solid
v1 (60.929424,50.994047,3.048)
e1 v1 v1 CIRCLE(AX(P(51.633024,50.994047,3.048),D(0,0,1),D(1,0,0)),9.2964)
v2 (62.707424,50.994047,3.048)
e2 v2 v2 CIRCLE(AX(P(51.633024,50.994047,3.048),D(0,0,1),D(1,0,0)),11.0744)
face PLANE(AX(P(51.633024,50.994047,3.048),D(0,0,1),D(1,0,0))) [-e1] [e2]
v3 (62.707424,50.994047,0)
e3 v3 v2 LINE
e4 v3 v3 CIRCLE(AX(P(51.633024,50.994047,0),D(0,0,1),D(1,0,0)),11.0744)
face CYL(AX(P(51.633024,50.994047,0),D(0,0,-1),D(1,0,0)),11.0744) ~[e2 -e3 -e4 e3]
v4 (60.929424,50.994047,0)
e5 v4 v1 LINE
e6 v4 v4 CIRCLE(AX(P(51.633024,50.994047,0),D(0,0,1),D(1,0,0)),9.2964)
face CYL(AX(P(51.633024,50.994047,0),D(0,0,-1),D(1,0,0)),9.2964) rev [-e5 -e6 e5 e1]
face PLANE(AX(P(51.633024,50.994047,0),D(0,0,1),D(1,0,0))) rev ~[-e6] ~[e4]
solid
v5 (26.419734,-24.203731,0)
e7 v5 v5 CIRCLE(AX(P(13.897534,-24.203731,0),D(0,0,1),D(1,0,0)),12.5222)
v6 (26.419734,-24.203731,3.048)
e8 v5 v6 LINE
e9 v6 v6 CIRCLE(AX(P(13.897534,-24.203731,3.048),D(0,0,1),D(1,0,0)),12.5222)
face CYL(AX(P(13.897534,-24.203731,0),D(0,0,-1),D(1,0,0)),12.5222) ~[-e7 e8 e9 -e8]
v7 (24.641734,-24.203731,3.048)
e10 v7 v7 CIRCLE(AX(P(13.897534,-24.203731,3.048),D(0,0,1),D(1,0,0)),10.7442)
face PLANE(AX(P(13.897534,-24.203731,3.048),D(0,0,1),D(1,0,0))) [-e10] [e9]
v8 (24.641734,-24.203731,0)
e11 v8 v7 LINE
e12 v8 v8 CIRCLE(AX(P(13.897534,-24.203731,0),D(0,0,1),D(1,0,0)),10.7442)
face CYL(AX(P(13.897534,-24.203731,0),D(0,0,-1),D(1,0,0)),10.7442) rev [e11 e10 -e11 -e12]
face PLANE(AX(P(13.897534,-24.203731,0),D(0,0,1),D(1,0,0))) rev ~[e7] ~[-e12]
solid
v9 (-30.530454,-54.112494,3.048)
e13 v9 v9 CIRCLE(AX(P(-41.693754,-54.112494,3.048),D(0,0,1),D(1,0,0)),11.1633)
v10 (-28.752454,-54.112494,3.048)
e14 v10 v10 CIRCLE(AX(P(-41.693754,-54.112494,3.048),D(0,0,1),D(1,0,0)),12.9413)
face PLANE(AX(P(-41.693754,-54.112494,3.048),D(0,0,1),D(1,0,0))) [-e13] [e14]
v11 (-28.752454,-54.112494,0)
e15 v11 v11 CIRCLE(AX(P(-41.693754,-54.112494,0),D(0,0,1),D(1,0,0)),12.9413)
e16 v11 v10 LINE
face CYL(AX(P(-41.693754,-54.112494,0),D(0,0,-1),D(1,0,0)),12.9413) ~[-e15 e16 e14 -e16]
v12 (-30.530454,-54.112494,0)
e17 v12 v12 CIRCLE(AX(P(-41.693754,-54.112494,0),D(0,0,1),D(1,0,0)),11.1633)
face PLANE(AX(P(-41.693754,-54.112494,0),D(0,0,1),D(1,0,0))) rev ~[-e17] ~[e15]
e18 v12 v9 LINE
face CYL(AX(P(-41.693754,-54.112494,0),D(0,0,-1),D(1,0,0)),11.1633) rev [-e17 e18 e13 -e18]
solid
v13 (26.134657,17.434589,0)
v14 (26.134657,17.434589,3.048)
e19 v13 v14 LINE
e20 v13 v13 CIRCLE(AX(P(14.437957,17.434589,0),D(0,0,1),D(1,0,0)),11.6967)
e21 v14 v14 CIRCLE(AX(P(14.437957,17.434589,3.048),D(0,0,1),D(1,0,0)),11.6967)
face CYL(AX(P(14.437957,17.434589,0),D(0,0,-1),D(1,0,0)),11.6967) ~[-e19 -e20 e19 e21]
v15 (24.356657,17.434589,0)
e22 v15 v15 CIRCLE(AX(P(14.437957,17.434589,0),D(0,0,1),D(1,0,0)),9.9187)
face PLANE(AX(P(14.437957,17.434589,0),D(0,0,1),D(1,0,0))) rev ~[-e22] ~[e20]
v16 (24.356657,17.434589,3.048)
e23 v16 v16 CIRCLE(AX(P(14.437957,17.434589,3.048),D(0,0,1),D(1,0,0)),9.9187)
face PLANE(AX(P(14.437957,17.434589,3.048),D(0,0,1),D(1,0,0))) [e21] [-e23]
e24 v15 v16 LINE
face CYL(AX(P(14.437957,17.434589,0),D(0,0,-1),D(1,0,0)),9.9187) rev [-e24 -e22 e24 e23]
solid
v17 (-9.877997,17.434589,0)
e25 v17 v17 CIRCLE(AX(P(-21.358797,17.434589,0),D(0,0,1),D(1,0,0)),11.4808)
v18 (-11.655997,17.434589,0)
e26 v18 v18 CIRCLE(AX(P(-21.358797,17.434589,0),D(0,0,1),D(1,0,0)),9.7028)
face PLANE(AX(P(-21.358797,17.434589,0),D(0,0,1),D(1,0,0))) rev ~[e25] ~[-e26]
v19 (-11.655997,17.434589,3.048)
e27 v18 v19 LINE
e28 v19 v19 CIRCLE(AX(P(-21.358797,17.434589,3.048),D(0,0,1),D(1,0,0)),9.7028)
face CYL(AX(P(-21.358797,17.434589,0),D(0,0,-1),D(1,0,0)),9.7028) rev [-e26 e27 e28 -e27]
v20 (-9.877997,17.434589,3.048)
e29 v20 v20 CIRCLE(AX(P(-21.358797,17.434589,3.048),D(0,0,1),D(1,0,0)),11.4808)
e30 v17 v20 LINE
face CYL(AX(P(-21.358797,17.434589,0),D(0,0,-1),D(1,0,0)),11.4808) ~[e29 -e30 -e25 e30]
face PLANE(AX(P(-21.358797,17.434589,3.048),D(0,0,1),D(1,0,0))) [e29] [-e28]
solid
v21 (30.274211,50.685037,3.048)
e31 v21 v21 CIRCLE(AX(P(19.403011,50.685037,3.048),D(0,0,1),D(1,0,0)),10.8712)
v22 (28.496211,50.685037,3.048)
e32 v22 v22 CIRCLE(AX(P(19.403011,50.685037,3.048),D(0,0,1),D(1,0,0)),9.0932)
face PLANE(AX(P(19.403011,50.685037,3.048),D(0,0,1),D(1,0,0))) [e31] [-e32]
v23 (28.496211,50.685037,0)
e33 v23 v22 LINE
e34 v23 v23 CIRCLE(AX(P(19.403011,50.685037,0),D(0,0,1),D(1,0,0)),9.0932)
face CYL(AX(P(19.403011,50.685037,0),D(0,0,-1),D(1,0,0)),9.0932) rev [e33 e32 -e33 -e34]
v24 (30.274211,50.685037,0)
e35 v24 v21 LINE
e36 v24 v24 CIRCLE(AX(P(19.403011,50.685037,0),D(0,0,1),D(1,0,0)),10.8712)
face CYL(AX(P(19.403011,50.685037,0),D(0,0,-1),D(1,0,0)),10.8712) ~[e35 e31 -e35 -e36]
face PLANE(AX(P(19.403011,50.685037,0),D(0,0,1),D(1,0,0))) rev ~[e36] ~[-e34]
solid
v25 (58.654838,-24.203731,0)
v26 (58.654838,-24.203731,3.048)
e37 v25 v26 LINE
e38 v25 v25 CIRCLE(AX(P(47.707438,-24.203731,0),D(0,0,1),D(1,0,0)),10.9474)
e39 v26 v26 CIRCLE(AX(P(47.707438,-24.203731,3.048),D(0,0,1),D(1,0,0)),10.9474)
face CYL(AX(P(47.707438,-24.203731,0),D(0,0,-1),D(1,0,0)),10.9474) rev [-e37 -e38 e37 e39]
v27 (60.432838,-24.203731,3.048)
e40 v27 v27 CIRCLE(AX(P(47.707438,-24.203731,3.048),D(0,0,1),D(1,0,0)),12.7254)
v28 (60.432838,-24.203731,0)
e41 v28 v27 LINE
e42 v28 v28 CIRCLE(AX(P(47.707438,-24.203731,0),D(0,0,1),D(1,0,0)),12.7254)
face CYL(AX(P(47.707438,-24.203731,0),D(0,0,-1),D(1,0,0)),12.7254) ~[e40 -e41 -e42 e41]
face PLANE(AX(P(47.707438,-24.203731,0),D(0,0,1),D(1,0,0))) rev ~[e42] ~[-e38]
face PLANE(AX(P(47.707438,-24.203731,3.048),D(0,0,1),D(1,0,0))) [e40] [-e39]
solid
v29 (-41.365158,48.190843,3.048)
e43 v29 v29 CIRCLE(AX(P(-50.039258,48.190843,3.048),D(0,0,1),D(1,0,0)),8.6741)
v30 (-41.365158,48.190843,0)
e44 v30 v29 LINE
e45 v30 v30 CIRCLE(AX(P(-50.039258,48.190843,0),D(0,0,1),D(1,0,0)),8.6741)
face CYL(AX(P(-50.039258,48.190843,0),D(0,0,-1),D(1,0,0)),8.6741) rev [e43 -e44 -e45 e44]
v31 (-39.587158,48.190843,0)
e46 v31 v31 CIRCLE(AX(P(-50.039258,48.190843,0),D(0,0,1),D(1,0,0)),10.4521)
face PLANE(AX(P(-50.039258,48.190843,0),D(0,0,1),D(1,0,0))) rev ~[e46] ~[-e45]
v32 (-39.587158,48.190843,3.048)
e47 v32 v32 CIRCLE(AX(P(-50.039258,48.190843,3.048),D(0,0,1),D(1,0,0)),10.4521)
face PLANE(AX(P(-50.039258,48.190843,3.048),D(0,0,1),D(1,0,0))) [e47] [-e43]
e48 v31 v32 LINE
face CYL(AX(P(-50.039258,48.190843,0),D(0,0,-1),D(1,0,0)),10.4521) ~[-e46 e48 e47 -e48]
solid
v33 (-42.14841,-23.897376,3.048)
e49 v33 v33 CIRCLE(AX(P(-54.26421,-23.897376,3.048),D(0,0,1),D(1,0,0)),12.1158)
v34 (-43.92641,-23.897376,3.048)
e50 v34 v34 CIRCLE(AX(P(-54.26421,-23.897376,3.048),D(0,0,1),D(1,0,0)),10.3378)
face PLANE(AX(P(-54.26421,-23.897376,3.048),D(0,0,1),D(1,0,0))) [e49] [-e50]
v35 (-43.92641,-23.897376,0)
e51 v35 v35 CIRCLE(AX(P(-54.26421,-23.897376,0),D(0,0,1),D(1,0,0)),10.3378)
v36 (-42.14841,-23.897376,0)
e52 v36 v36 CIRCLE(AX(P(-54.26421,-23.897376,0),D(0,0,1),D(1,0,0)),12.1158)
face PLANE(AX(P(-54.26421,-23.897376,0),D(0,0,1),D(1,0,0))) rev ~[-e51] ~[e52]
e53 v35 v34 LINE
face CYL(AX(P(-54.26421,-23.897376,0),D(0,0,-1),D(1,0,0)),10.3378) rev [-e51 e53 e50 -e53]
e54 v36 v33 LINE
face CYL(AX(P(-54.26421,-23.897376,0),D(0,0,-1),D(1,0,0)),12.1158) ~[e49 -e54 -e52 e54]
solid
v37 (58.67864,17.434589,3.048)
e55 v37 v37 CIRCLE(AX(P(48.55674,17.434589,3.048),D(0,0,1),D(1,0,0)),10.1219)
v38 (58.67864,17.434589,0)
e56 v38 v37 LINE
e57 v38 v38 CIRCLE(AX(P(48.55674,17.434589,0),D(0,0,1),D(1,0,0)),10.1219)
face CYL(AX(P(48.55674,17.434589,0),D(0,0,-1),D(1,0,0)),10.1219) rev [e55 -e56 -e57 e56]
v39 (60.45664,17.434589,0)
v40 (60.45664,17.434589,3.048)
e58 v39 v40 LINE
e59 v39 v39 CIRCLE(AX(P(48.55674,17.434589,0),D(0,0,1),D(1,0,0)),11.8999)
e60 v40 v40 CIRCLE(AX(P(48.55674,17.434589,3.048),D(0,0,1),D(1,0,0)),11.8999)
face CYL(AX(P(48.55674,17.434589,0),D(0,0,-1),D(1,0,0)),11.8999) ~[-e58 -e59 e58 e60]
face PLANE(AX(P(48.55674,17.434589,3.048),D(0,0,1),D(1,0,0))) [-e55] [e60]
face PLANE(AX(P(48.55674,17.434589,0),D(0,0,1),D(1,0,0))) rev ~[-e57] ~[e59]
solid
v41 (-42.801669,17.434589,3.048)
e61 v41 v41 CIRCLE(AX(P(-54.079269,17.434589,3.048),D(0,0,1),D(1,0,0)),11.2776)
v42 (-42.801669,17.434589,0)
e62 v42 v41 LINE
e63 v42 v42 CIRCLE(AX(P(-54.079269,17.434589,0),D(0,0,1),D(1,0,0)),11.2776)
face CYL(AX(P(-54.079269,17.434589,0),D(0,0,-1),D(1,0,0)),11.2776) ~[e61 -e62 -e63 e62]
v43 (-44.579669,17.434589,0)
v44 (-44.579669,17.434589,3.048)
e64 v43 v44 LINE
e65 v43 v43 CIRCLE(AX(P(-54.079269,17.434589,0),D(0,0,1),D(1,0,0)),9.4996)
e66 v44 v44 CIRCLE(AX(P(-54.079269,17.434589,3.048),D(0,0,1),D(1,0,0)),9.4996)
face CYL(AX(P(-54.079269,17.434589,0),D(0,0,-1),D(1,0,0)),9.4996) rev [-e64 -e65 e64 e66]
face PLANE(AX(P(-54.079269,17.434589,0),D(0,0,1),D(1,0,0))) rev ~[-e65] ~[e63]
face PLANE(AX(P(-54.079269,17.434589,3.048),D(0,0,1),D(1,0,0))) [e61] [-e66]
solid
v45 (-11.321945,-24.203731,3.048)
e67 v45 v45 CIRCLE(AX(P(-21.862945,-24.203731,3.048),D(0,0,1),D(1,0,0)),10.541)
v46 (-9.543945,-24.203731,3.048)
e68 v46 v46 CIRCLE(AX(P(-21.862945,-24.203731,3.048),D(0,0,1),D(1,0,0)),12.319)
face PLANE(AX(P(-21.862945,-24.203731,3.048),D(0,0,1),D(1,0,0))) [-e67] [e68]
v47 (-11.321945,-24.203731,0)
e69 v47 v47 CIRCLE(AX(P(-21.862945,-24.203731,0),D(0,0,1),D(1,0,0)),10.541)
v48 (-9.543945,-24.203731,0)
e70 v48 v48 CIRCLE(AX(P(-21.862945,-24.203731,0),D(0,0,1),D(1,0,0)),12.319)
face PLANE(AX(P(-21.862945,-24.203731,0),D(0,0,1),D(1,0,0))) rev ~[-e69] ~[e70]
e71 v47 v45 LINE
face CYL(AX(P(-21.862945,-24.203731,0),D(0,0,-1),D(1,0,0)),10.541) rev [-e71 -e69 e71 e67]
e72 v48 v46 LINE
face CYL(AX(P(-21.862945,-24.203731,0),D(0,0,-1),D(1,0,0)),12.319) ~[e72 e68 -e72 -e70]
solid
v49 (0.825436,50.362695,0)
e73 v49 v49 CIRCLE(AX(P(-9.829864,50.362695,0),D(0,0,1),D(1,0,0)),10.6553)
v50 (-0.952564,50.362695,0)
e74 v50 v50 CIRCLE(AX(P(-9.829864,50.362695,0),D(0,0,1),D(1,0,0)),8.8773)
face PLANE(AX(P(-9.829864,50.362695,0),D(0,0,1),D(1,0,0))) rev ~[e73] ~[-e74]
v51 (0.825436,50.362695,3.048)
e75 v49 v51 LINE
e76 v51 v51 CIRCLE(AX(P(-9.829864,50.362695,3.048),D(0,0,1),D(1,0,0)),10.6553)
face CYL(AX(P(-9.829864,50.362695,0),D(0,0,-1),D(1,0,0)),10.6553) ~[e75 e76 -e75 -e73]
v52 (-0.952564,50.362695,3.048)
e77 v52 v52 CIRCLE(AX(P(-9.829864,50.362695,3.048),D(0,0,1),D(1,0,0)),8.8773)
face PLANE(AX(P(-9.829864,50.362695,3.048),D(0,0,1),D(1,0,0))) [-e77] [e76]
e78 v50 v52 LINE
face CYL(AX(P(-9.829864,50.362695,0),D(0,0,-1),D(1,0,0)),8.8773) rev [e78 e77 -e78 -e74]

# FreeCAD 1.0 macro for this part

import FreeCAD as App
import Part
import Sketcher
from FreeCAD import Vector
Q = App.Units.Quantity

doc = App.newDocument("Part")
body = doc.addObject("PartDesign::Body", "Body")

# Sketch on XY plane
sketch1 = doc.addObject("Sketcher::SketchObject", "Sketch")
body.addObject(sketch1)
sketch1.AttachmentSupport = (doc.XY_Plane, [""])
sketch1.MapMode = "FlatFace"
sketch1.addGeometry([
    Part.Circle(Vector(-50.039258, 48.190843, 0), Vector(0, 0, 1), 10.4521),
    Part.Circle(Vector(-50.039258, 48.190843, 0), Vector(0, 0, 1), 8.6741),
], False)
sketch1.addConstraint([
    Sketcher.Constraint("Coincident", 1, 3, 0, 3),
    Sketcher.Constraint("Diameter", 0, Q("0.823 in")),
    Sketcher.Constraint("Diameter", 1, Q("0.683 in")),
    Sketcher.Constraint("DistanceX", 0, 3, -1, 1, 50.039258),
    Sketcher.Constraint("DistanceY", -1, 1, 0, 3, 48.190843),
])
pad1 = doc.addObject("PartDesign::Pad", "Pad")
body.addObject(pad1)
pad1.Profile = sketch1
pad1.Length = Q("0.12 in")
body2 = doc.addObject("PartDesign::Body", "Body001")

# Sketch on XY plane
sketch2 = doc.addObject("Sketcher::SketchObject", "Sketch001")
body2.addObject(sketch2)
sketch2.AttachmentSupport = (doc.getObject("XY_Plane001"), [""])
sketch2.MapMode = "FlatFace"
sketch2.addGeometry([
    Part.Circle(Vector(-9.829864, 50.362695, 0), Vector(0, 0, 1), 10.6553),
    Part.Circle(Vector(-9.829864, 50.362695, 0), Vector(0, 0, 1), 8.8773),
], False)
sketch2.addConstraint([
    Sketcher.Constraint("Coincident", 1, 3, 0, 3),
    Sketcher.Constraint("Diameter", 0, Q("0.839 in")),
    Sketcher.Constraint("Diameter", 1, Q("0.699 in")),
    Sketcher.Constraint("DistanceX", 0, 3, -1, 1, 9.829864),
    Sketcher.Constraint("DistanceY", -1, 1, 0, 3, 50.362695),
])
pad2 = doc.addObject("PartDesign::Pad", "Pad001")
body2.addObject(pad2)
pad2.Profile = sketch2
pad2.Length = Q("0.12 in")
body3 = doc.addObject("PartDesign::Body", "Body002")

# Sketch on XY plane
sketch3 = doc.addObject("Sketcher::SketchObject", "Sketch002")
body3.addObject(sketch3)
sketch3.AttachmentSupport = (doc.getObject("XY_Plane002"), [""])
sketch3.MapMode = "FlatFace"
sketch3.addGeometry([
    Part.Circle(Vector(19.403011, 50.685037, 0), Vector(0, 0, 1), 10.8712),
    Part.Circle(Vector(19.403011, 50.685037, 0), Vector(0, 0, 1), 9.0932),
], False)
sketch3.addConstraint([
    Sketcher.Constraint("Coincident", 1, 3, 0, 3),
    Sketcher.Constraint("Diameter", 0, Q("0.856 in")),
    Sketcher.Constraint("Diameter", 1, Q("0.716 in")),
    Sketcher.Constraint("DistanceX", -1, 1, 0, 3, 19.403011),
    Sketcher.Constraint("DistanceY", -1, 1, 0, 3, 50.685037),
])
pad3 = doc.addObject("PartDesign::Pad", "Pad002")
body3.addObject(pad3)
pad3.Profile = sketch3
pad3.Length = Q("0.12 in")
body4 = doc.addObject("PartDesign::Body", "Body003")

# Sketch on XY plane
sketch4 = doc.addObject("Sketcher::SketchObject", "Sketch003")
body4.addObject(sketch4)
sketch4.AttachmentSupport = (doc.getObject("XY_Plane003"), [""])
sketch4.MapMode = "FlatFace"
sketch4.addGeometry([
    Part.Circle(Vector(51.633024, 50.994047, 0), Vector(0, 0, 1), 11.0744),
    Part.Circle(Vector(51.633024, 50.994047, 0), Vector(0, 0, 1), 9.2964),
], False)
sketch4.addConstraint([
    Sketcher.Constraint("Coincident", 1, 3, 0, 3),
    Sketcher.Constraint("Diameter", 0, Q("0.872 in")),
    Sketcher.Constraint("Diameter", 1, Q("0.732 in")),
    Sketcher.Constraint("DistanceX", -1, 1, 0, 3, 51.633024),
    Sketcher.Constraint("DistanceY", -1, 1, 0, 3, 50.994047),
])
pad4 = doc.addObject("PartDesign::Pad", "Pad003")
body4.addObject(pad4)
pad4.Profile = sketch4
pad4.Length = Q("0.12 in")
body5 = doc.addObject("PartDesign::Body", "Body004")

# Sketch on XY plane
sketch5 = doc.addObject("Sketcher::SketchObject", "Sketch004")
body5.addObject(sketch5)
sketch5.AttachmentSupport = (doc.getObject("XY_Plane004"), [""])
sketch5.MapMode = "FlatFace"
sketch5.addGeometry([
    Part.Circle(Vector(-54.079269, 17.434589, 0), Vector(0, 0, 1), 11.2776),
    Part.Circle(Vector(-54.079269, 17.434589, 0), Vector(0, 0, 1), 9.4996),
], False)
sketch5.addConstraint([
    Sketcher.Constraint("Coincident", 1, 3, 0, 3),
    Sketcher.Constraint("Diameter", 0, Q("0.888 in")),
    Sketcher.Constraint("Diameter", 1, Q("0.748 in")),
    Sketcher.Constraint("DistanceX", 0, 3, -1, 1, 54.079269),
    Sketcher.Constraint("DistanceY", -1, 1, 0, 3, 17.434589),
])
pad5 = doc.addObject("PartDesign::Pad", "Pad004")
body5.addObject(pad5)
pad5.Profile = sketch5
pad5.Length = Q("0.12 in")
body6 = doc.addObject("PartDesign::Body", "Body005")

# Sketch on XY plane
sketch6 = doc.addObject("Sketcher::SketchObject", "Sketch005")
body6.addObject(sketch6)
sketch6.AttachmentSupport = (doc.getObject("XY_Plane005"), [""])
sketch6.MapMode = "FlatFace"
sketch6.addGeometry([
    Part.Circle(Vector(-21.358797, 17.434589, 0), Vector(0, 0, 1), 11.4808),
    Part.Circle(Vector(-21.358797, 17.434589, 0), Vector(0, 0, 1), 9.7028),
], False)
sketch6.addConstraint([
    Sketcher.Constraint("Coincident", 1, 3, 0, 3),
    Sketcher.Constraint("Diameter", 0, Q("0.904 in")),
    Sketcher.Constraint("Diameter", 1, Q("0.764 in")),
    Sketcher.Constraint("DistanceY", -1, 1, 0, 3, 17.434589),
    Sketcher.Constraint("DistanceX", 0, 3, -1, 1, 21.358797),
])
pad6 = doc.addObject("PartDesign::Pad", "Pad005")
body6.addObject(pad6)
pad6.Profile = sketch6
pad6.Length = Q("0.12 in")
body7 = doc.addObject("PartDesign::Body", "Body006")

# Sketch on XY plane
sketch7 = doc.addObject("Sketcher::SketchObject", "Sketch006")
body7.addObject(sketch7)
sketch7.AttachmentSupport = (doc.getObject("XY_Plane006"), [""])
sketch7.MapMode = "FlatFace"
sketch7.addGeometry([
    Part.Circle(Vector(14.437957, 17.434589, 0), Vector(0, 0, 1), 11.6967),
    Part.Circle(Vector(14.437957, 17.434589, 0), Vector(0, 0, 1), 9.9187),
], False)
sketch7.addConstraint([
    Sketcher.Constraint("Coincident", 1, 3, 0, 3),
    Sketcher.Constraint("Diameter", 0, Q("0.921 in")),
    Sketcher.Constraint("Diameter", 1, Q("0.781 in")),
    Sketcher.Constraint("DistanceY", -1, 1, 0, 3, 17.434589),
    Sketcher.Constraint("DistanceX", -1, 1, 0, 3, 14.437957),
])
pad7 = doc.addObject("PartDesign::Pad", "Pad006")
body7.addObject(pad7)
pad7.Profile = sketch7
pad7.Length = Q("0.12 in")
body8 = doc.addObject("PartDesign::Body", "Body007")

# Sketch on XY plane
sketch8 = doc.addObject("Sketcher::SketchObject", "Sketch007")
body8.addObject(sketch8)
sketch8.AttachmentSupport = (doc.getObject("XY_Plane007"), [""])
sketch8.MapMode = "FlatFace"
sketch8.addGeometry([
    Part.Circle(Vector(48.55674, 17.434589, 0), Vector(0, 0, 1), 11.8999),
    Part.Circle(Vector(48.55674, 17.434589, 0), Vector(0, 0, 1), 10.1219),
], False)
sketch8.addConstraint([
    Sketcher.Constraint("Coincident", 1, 3, 0, 3),
    Sketcher.Constraint("Diameter", 0, Q("0.937 in")),
    Sketcher.Constraint("Diameter", 1, Q("0.797 in")),
    Sketcher.Constraint("DistanceX", -1, 1, 0, 3, 48.55674),
    Sketcher.Constraint("DistanceY", -1, 1, 0, 3, 17.434589),
])
pad8 = doc.addObject("PartDesign::Pad", "Pad007")
body8.addObject(pad8)
pad8.Profile = sketch8
pad8.Length = Q("0.12 in")
body9 = doc.addObject("PartDesign::Body", "Body008")

# Sketch on XY plane
sketch9 = doc.addObject("Sketcher::SketchObject", "Sketch008")
body9.addObject(sketch9)
sketch9.AttachmentSupport = (doc.getObject("XY_Plane008"), [""])
sketch9.MapMode = "FlatFace"
sketch9.addGeometry([
    Part.Circle(Vector(-54.26421, -23.897376, 0), Vector(0, 0, 1), 12.1158),
    Part.Circle(Vector(-54.26421, -23.897376, 0), Vector(0, 0, 1), 10.3378),
], False)
sketch9.addConstraint([
    Sketcher.Constraint("Coincident", 1, 3, 0, 3),
    Sketcher.Constraint("Diameter", 0, Q("0.954 in")),
    Sketcher.Constraint("Diameter", 1, Q("0.814 in")),
    Sketcher.Constraint("DistanceX", 0, 3, -1, 1, 54.26421),
    Sketcher.Constraint("DistanceY", 0, 3, -1, 1, 23.897376),
])
pad9 = doc.addObject("PartDesign::Pad", "Pad008")
body9.addObject(pad9)
pad9.Profile = sketch9
pad9.Length = Q("0.12 in")
body10 = doc.addObject("PartDesign::Body", "Body009")

# Sketch on XY plane
sketch10 = doc.addObject("Sketcher::SketchObject", "Sketch009")
body10.addObject(sketch10)
sketch10.AttachmentSupport = (doc.getObject("XY_Plane009"), [""])
sketch10.MapMode = "FlatFace"
sketch10.addGeometry([
    Part.Circle(Vector(-21.862945, -24.203731, 0), Vector(0, 0, 1), 12.319),
    Part.Circle(Vector(-21.862945, -24.203731, 0), Vector(0, 0, 1), 10.541),
], False)
sketch10.addConstraint([
    Sketcher.Constraint("Coincident", 1, 3, 0, 3),
    Sketcher.Constraint("Diameter", 0, Q("0.97 in")),
    Sketcher.Constraint("Diameter", 1, Q("0.83 in")),
    Sketcher.Constraint("DistanceY", 0, 3, -1, 1, 24.203731),
    Sketcher.Constraint("DistanceX", 0, 3, -1, 1, 21.862945),
])
pad10 = doc.addObject("PartDesign::Pad", "Pad009")
body10.addObject(pad10)
pad10.Profile = sketch10
pad10.Length = Q("0.12 in")
body11 = doc.addObject("PartDesign::Body", "Body010")

# Sketch on XY plane
sketch11 = doc.addObject("Sketcher::SketchObject", "Sketch010")
body11.addObject(sketch11)
sketch11.AttachmentSupport = (doc.getObject("XY_Plane010"), [""])
sketch11.MapMode = "FlatFace"
sketch11.addGeometry([
    Part.Circle(Vector(13.897534, -24.203731, 0), Vector(0, 0, 1), 12.5222),
    Part.Circle(Vector(13.897534, -24.203731, 0), Vector(0, 0, 1), 10.7442),
], False)
sketch11.addConstraint([
    Sketcher.Constraint("Coincident", 1, 3, 0, 3),
    Sketcher.Constraint("Diameter", 0, Q("0.986 in")),
    Sketcher.Constraint("Diameter", 1, Q("0.846 in")),
    Sketcher.Constraint("DistanceY", 0, 3, -1, 1, 24.203731),
    Sketcher.Constraint("DistanceX", -1, 1, 0, 3, 13.897534),
])
pad11 = doc.addObject("PartDesign::Pad", "Pad010")
body11.addObject(pad11)
pad11.Profile = sketch11
pad11.Length = Q("0.12 in")
body12 = doc.addObject("PartDesign::Body", "Body011")

# Sketch on XY plane
sketch12 = doc.addObject("Sketcher::SketchObject", "Sketch011")
body12.addObject(sketch12)
sketch12.AttachmentSupport = (doc.getObject("XY_Plane011"), [""])
sketch12.MapMode = "FlatFace"
sketch12.addGeometry([
    Part.Circle(Vector(47.707438, -24.203731, 0), Vector(0, 0, 1), 12.7254),
    Part.Circle(Vector(47.707438, -24.203731, 0), Vector(0, 0, 1), 10.9474),
], False)
sketch12.addConstraint([
    Sketcher.Constraint("Coincident", 1, 3, 0, 3),
    Sketcher.Constraint("Diameter", 0, Q("1.002 in")),
    Sketcher.Constraint("Diameter", 1, Q("0.862 in")),
    Sketcher.Constraint("DistanceX", -1, 1, 0, 3, 47.707438),
    Sketcher.Constraint("DistanceY", 0, 3, -1, 1, 24.203731),
])
pad12 = doc.addObject("PartDesign::Pad", "Pad011")
body12.addObject(pad12)
pad12.Profile = sketch12
pad12.Length = Q("0.12 in")
body13 = doc.addObject("PartDesign::Body", "Body012")

# Sketch on XY plane
sketch13 = doc.addObject("Sketcher::SketchObject", "Sketch012")
body13.addObject(sketch13)
sketch13.AttachmentSupport = (doc.getObject("XY_Plane012"), [""])
sketch13.MapMode = "FlatFace"
sketch13.addGeometry([
    Part.Circle(Vector(-41.693754, -54.112494, 0), Vector(0, 0, 1), 12.9413),
    Part.Circle(Vector(-41.693754, -54.112494, 0), Vector(0, 0, 1), 11.1633),
], False)
sketch13.addConstraint([
    Sketcher.Constraint("Coincident", 1, 3, 0, 3),
    Sketcher.Constraint("Diameter", 0, Q("1.019 in")),
    Sketcher.Constraint("Diameter", 1, Q("0.879 in")),
    Sketcher.Constraint("DistanceX", 0, 3, -1, 1, 41.693754),
    Sketcher.Constraint("DistanceY", 0, 3, -1, 1, 54.112494),
])
pad13 = doc.addObject("PartDesign::Pad", "Pad012")
body13.addObject(pad13)
pad13.Profile = sketch13
pad13.Length = Q("0.12 in")

doc.recompute()
